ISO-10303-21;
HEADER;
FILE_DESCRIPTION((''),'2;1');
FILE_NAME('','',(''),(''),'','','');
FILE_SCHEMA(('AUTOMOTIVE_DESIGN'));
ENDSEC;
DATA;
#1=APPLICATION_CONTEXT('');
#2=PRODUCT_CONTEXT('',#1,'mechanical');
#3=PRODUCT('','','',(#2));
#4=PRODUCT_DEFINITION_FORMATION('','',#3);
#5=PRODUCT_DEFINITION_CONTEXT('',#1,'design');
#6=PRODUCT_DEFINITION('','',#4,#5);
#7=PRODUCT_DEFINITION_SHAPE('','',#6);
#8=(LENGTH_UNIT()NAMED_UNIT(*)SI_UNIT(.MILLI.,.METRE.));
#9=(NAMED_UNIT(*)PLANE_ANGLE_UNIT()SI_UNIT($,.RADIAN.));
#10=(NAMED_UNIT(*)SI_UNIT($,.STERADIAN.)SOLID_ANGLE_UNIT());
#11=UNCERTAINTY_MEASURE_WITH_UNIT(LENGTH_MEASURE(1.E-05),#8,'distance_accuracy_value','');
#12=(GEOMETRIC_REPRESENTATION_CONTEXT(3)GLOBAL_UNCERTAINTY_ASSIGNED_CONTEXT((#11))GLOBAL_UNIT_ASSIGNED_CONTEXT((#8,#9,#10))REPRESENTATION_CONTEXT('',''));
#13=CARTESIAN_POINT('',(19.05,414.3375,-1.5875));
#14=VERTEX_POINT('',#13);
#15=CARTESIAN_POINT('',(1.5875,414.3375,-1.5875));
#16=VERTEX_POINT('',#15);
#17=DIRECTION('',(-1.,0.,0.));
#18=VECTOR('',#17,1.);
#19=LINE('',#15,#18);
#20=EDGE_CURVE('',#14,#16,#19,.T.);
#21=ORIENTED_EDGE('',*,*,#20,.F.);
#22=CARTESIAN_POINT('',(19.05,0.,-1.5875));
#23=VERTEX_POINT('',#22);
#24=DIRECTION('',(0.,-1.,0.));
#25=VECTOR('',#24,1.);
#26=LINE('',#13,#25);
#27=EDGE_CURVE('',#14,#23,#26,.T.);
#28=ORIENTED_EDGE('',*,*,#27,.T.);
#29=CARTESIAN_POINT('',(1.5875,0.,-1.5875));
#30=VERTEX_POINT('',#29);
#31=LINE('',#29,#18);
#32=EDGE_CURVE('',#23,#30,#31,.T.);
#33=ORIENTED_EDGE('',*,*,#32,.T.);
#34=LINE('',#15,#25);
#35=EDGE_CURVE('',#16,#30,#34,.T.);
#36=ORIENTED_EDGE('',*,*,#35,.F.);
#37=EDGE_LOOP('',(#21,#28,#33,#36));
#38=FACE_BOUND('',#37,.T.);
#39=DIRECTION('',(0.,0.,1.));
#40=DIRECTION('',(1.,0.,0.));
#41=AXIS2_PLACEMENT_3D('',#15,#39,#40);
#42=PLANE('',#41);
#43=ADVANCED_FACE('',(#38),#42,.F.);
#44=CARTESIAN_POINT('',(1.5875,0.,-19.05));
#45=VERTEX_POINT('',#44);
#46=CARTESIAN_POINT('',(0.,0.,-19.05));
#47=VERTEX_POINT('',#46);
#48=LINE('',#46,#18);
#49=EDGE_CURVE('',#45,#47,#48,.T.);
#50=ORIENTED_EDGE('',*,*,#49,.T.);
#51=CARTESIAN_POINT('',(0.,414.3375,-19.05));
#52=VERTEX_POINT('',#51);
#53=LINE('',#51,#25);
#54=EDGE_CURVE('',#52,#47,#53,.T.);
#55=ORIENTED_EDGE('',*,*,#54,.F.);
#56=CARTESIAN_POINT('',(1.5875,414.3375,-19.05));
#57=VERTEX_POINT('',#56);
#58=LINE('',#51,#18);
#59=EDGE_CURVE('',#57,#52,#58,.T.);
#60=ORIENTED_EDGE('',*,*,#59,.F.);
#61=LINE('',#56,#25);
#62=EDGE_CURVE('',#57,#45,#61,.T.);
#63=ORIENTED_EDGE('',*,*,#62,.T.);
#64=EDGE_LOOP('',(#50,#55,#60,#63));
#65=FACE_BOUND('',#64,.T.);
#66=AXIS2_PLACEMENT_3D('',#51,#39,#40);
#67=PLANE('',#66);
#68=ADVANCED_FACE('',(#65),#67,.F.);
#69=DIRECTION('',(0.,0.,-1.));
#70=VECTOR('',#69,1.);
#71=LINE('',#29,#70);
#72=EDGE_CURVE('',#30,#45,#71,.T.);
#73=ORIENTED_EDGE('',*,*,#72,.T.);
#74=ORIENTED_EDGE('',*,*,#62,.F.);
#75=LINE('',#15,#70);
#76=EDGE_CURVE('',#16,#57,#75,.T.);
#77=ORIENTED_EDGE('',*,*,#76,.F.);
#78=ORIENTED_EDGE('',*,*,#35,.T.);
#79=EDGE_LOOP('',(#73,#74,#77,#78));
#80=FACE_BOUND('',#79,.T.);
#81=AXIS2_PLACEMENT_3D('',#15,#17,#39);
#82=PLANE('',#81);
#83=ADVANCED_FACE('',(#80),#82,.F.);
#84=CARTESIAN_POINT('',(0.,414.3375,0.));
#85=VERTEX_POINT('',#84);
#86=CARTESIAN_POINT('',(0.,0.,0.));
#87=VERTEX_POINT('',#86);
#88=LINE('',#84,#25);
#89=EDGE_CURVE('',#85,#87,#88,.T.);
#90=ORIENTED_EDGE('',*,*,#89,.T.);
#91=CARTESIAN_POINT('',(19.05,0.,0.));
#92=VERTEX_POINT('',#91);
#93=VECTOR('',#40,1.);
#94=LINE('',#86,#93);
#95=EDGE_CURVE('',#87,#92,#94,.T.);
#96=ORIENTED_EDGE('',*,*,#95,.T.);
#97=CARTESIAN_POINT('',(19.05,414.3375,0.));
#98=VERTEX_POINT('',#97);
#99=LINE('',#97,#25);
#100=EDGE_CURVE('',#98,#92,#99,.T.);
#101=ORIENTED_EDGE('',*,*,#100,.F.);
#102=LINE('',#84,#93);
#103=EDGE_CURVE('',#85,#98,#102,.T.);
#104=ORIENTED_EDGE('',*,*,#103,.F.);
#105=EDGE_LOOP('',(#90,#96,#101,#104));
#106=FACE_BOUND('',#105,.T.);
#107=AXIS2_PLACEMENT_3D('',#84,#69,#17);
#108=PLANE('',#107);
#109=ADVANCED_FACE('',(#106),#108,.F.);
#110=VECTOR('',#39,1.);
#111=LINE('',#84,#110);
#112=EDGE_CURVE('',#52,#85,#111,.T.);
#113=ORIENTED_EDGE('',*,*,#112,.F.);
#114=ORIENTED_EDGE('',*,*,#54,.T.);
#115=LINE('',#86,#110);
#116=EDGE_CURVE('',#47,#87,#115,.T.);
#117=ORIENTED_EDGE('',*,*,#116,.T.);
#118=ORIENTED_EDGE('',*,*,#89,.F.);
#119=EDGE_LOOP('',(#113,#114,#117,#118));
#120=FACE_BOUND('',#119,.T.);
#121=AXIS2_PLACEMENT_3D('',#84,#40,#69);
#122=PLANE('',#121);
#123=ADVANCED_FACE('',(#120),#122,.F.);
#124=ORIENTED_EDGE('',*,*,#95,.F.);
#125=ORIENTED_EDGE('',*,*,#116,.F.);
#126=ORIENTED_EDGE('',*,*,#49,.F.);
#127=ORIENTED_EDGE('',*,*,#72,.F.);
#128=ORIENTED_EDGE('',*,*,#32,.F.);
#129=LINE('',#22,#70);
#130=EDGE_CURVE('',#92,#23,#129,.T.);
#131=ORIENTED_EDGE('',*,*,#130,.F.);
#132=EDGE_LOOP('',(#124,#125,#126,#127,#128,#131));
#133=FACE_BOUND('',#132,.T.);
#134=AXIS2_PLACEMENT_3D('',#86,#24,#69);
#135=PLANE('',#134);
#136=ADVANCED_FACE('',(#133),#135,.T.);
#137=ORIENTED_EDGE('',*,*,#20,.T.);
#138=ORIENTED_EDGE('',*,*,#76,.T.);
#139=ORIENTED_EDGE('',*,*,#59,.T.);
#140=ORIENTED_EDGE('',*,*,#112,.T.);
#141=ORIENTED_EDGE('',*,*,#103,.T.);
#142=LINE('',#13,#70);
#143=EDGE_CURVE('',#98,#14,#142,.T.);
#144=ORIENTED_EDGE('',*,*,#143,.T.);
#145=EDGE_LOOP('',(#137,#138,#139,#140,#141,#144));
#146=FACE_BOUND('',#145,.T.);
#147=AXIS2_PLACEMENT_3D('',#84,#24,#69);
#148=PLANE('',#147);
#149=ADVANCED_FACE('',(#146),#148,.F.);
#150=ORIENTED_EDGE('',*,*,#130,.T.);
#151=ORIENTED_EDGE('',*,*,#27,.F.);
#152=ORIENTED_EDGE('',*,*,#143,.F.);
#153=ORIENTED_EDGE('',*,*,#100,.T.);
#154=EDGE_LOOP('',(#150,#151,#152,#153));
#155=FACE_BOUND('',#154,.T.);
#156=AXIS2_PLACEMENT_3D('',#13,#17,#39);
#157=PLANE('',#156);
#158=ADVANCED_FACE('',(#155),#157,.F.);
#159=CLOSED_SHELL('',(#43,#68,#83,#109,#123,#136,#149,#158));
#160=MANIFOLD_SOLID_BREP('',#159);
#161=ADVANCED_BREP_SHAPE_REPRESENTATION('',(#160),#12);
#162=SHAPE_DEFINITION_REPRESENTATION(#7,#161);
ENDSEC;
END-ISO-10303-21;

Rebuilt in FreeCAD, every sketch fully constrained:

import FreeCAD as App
import Part
import Sketcher

V = App.Vector
Q = App.Units.Quantity

doc = App.newDocument("Part")
body = doc.addObject("PartDesign::Body", "Body")

# Sketch on XZ plane
sketch1 = body.newObject("Sketcher::SketchObject", "Sketch")
sketch1.AttachmentSupport = (doc.getObject("XZ_Plane"), [""])
sketch1.MapMode = "FlatFace"
sketch1.addGeometry(Part.LineSegment(V(0, 0, 0), V(19.05, 0, 0)), False)
sketch1.addGeometry(Part.LineSegment(V(19.05, 0, 0), V(19.05, -1.5875, 0)), False)
sketch1.addGeometry(Part.LineSegment(V(19.05, -1.5875, 0), V(1.5875, -1.5875, 0)), False)
sketch1.addGeometry(Part.LineSegment(V(1.5875, -1.5875, 0), V(1.5875, -19.05, 0)), False)
sketch1.addGeometry(Part.LineSegment(V(1.5875, -19.05, 0), V(0, -19.05, 0)), False)
sketch1.addGeometry(Part.LineSegment(V(0, -19.05, 0), V(0, 0, 0)), False)
sketch1.addConstraint(Sketcher.Constraint("Coincident", 0, 2, 1, 1))
sketch1.addConstraint(Sketcher.Constraint("Coincident", 1, 2, 2, 1))
sketch1.addConstraint(Sketcher.Constraint("Coincident", 2, 2, 3, 1))
sketch1.addConstraint(Sketcher.Constraint("Coincident", 3, 2, 4, 1))
sketch1.addConstraint(Sketcher.Constraint("Coincident", 4, 2, 5, 1))
sketch1.addConstraint(Sketcher.Constraint("Coincident", 5, 2, 0, 1))
sketch1.addConstraint(Sketcher.Constraint("Horizontal", 0))
sketch1.addConstraint(Sketcher.Constraint("Vertical", 1))
sketch1.addConstraint(Sketcher.Constraint("Horizontal", 2))
sketch1.addConstraint(Sketcher.Constraint("Vertical", 3))
sketch1.addConstraint(Sketcher.Constraint("Horizontal", 4))
sketch1.addConstraint(Sketcher.Constraint("Vertical", 5))
sketch1.addConstraint(Sketcher.Constraint("Coincident", 5, 2, -1, 1))
sketch1.addConstraint(Sketcher.Constraint("Equal", 4, 1))
sketch1.addConstraint(Sketcher.Constraint("Equal", 2, 3))
sketch1.addConstraint(Sketcher.Constraint("DistanceX", 0, 1, 0, 2, Q("0.75 in")))
sketch1.addConstraint(Sketcher.Constraint("DistanceX", 2, 2, 2, 1, Q("0.6875 in")))
pad1 = body.newObject("PartDesign::Pad", "Pad")
pad1.Profile = sketch1
pad1.Length = Q("16.3125 in")
pad1.Reversed = True

doc.recompute()
